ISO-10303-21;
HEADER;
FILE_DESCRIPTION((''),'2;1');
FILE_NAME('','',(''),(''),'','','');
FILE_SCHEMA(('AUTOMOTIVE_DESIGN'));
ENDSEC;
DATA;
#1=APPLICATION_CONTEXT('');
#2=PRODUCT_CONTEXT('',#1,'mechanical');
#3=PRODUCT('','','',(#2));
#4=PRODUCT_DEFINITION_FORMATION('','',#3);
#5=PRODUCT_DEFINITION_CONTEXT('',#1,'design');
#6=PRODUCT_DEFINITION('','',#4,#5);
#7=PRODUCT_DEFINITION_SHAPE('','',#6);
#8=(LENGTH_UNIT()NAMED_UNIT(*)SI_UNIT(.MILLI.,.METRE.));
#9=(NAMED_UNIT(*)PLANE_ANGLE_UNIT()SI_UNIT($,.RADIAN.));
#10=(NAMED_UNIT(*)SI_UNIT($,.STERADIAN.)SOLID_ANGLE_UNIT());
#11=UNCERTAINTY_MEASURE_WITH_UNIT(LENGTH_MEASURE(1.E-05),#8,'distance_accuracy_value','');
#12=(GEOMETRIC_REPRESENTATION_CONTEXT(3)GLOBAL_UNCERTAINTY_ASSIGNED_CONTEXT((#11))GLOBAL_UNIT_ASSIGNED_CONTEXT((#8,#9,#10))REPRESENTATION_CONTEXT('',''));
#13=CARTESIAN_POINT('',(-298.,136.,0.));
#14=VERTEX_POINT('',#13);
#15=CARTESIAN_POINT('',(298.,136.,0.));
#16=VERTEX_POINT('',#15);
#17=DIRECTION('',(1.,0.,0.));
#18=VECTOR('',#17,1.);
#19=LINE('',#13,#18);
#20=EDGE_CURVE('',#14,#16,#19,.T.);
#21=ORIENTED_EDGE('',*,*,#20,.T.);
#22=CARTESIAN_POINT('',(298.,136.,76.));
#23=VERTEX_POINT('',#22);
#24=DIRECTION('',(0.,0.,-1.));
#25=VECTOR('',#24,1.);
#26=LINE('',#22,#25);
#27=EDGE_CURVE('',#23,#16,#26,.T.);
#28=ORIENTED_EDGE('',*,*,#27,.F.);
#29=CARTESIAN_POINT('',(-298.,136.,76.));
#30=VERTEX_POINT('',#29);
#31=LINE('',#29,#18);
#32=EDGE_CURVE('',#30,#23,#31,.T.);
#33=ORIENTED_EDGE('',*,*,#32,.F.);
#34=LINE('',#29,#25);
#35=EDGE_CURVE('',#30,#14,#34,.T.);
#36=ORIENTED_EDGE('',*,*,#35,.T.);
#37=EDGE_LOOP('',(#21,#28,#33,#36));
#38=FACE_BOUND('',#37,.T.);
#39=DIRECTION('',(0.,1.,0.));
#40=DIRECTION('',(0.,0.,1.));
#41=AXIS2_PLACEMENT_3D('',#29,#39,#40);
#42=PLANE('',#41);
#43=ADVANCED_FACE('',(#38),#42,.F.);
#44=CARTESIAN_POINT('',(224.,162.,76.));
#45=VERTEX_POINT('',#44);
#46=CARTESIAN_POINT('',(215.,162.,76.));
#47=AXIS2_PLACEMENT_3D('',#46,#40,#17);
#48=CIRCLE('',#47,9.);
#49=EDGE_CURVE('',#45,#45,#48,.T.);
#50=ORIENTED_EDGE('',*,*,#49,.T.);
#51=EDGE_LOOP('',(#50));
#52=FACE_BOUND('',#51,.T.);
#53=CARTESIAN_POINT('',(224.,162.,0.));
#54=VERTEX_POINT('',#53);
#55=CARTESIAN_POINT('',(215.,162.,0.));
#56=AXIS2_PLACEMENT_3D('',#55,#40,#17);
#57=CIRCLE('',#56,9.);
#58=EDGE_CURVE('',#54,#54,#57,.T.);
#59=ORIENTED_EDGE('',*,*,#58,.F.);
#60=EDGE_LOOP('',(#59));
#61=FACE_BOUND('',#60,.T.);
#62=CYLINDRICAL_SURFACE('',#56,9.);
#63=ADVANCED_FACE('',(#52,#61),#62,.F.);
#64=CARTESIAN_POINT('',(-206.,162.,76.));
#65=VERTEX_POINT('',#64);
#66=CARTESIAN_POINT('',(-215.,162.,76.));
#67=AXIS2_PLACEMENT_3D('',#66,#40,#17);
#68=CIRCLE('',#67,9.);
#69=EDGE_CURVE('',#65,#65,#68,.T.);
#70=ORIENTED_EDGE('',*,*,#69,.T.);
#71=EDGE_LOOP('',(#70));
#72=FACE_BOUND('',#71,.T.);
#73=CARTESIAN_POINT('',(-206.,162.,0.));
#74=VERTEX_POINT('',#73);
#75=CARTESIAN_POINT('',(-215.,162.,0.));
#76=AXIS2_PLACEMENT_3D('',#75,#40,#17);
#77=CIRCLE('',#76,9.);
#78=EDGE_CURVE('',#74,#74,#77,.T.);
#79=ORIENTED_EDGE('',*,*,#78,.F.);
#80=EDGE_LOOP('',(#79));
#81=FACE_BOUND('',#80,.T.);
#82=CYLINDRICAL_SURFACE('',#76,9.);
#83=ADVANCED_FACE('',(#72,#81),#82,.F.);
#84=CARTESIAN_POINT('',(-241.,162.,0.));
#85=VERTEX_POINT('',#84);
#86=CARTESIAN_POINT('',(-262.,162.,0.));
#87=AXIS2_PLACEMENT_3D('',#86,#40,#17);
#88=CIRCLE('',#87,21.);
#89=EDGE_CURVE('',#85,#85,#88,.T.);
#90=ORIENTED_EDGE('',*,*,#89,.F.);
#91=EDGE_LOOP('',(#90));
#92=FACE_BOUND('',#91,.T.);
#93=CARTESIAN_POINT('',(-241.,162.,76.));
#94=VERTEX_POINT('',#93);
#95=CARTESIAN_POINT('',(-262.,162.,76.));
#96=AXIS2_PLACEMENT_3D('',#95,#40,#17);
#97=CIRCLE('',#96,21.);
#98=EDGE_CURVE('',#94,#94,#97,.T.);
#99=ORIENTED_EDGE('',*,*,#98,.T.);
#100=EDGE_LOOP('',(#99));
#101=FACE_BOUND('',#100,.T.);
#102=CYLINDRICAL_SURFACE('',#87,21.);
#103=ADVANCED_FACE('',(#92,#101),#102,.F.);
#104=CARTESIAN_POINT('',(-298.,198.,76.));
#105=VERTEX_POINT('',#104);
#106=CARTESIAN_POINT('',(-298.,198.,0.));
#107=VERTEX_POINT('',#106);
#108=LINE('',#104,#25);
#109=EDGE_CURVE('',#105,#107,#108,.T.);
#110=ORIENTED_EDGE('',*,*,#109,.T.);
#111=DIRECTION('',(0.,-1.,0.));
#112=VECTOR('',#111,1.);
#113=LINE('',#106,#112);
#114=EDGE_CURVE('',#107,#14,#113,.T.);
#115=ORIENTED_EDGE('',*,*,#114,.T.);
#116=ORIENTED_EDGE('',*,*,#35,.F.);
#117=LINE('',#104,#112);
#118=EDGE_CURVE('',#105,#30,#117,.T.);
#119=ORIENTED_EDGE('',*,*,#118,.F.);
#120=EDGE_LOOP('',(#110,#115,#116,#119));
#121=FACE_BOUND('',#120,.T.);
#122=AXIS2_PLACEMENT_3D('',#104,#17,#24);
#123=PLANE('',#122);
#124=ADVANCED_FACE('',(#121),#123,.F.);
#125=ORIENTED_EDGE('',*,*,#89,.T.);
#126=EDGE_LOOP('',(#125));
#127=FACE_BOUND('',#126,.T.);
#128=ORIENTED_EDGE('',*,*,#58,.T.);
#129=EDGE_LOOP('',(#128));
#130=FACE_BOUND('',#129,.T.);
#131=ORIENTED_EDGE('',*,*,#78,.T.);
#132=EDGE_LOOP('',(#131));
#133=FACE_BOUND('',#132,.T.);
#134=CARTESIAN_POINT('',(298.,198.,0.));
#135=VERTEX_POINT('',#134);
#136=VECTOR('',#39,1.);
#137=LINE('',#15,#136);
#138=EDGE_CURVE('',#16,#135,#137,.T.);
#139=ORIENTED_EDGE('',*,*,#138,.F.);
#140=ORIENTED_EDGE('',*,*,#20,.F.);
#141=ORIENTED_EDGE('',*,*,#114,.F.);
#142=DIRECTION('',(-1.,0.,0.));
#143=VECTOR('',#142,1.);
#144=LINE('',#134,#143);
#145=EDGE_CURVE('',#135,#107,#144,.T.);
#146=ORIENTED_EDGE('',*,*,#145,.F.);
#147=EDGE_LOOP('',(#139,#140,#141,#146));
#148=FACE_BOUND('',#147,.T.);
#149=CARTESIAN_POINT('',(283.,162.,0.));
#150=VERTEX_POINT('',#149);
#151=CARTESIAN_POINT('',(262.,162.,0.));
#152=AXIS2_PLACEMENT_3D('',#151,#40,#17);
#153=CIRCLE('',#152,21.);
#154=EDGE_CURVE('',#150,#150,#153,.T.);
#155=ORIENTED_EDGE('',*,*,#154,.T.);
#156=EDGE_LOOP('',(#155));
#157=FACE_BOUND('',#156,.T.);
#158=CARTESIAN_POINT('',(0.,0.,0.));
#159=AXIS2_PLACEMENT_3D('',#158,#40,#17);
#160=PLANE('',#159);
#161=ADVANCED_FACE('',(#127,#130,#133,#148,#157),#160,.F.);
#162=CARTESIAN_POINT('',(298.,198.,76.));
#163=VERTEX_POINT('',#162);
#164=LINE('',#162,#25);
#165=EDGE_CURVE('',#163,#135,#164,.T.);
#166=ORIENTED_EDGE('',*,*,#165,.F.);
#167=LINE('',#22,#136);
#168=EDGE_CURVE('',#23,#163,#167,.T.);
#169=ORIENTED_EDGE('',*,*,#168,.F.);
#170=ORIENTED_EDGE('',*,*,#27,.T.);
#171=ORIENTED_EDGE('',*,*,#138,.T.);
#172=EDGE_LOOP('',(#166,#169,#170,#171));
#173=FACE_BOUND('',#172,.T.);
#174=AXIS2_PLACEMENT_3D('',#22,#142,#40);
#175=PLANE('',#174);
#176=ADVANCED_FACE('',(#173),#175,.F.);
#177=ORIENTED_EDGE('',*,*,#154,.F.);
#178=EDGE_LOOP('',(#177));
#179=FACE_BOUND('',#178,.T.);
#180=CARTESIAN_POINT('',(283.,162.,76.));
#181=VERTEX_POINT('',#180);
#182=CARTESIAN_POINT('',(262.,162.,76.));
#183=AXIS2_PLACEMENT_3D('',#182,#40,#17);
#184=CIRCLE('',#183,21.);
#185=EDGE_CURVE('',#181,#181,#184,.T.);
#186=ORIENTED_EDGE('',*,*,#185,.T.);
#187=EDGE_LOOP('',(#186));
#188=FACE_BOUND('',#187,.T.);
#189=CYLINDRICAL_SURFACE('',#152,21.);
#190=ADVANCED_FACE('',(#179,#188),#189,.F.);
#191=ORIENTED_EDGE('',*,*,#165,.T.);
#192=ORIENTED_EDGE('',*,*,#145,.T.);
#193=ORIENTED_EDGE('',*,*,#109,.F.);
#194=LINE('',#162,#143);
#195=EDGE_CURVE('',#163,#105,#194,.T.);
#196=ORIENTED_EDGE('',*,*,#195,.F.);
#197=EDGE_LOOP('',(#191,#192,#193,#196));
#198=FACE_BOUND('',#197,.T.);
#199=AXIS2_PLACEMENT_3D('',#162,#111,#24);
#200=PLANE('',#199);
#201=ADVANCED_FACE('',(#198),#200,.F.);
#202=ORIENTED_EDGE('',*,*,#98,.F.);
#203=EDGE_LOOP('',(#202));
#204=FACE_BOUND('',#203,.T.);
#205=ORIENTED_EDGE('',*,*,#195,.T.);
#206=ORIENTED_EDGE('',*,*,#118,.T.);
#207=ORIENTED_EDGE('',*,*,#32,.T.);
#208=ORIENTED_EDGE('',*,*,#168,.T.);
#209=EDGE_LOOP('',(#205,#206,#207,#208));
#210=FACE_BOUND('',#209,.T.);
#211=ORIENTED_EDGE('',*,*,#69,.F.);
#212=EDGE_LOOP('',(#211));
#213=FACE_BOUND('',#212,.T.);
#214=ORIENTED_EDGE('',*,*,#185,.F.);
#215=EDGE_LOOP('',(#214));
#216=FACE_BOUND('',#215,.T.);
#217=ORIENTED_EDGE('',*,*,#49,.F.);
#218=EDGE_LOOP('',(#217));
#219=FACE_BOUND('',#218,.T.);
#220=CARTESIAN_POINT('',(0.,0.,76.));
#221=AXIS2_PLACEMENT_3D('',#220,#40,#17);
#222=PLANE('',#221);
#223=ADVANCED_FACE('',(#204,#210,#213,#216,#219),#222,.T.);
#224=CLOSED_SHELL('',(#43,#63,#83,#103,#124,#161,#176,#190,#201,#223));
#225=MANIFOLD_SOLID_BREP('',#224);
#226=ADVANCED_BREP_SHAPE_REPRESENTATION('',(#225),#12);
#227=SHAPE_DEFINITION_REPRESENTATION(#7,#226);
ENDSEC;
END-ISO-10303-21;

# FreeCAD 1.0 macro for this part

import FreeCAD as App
import Part
import Sketcher

V = App.Vector
Q = App.Units.Quantity


def add_polygon(sketch, points):
    """Adds a closed chain of lines whose ends are joined by coincident constraints."""
    first, n = sketch.GeometryCount, len(points)
    for a, b in zip(points, points[1:] + points[:1]):
        sketch.addGeometry(Part.LineSegment(App.Vector(*a, 0), App.Vector(*b, 0)), False)
    for i in range(n):
        sketch.addConstraint(Sketcher.Constraint("Coincident", first + i, 2, first + (i + 1) % n, 1))

doc = App.newDocument("Part")
body = doc.addObject("PartDesign::Body", "Body")

sketch1 = body.newObject("Sketcher::SketchObject", "Sketch")
sketch1.AttachmentSupport = (doc.getObject("XY_Plane"), [""])
sketch1.MapMode = "FlatFace"
add_polygon(sketch1, [(-298, 198), (-298, 136), (298, 136), (298, 198)])
sketch1.addConstraint([
    Sketcher.Constraint("Vertical", 0),
    Sketcher.Constraint("Horizontal", 1),
    Sketcher.Constraint("Vertical", 2),
    Sketcher.Constraint("Horizontal", 3),
    Sketcher.Constraint("DistanceX", 1, 1, 1, 2, Q("596 mm")),
    Sketcher.Constraint("DistanceY", 0, 2, 0, 1, Q("62 mm")),
    Sketcher.Constraint("DistanceX", 0, 2, -1, 1, Q("298 mm")),
    Sketcher.Constraint("DistanceY", -1, 1, 0, 2, Q("136 mm")),
])
pad1 = body.newObject("PartDesign::Pad", "Pad")
pad1.Profile = sketch1
pad1.Length = 76

sketch2 = body.newObject("Sketcher::SketchObject", "Sketch001")
sketch2.AttachmentSupport = (doc.getObject("XY_Plane"), [""])
sketch2.MapMode = "FlatFace"
sketch2.AttachmentOffset = App.Placement(V(0, 0, 76), App.Rotation())
sketch2.addGeometry(Part.Circle(V(262, 162, 0), V(0, 0, 1), 21), False)
sketch2.addConstraint([
    Sketcher.Constraint("Diameter", 0, Q("42 mm")),
    Sketcher.Constraint("DistanceX", -1, 1, 0, 3, Q("262 mm")),
    Sketcher.Constraint("DistanceY", -1, 1, 0, 3, Q("162 mm")),
])
pocket1 = body.newObject("PartDesign::Pocket", "Pocket")
pocket1.Profile = sketch2
pocket1.Length = 76

sketch3 = body.newObject("Sketcher::SketchObject", "Sketch002")
sketch3.AttachmentSupport = (doc.getObject("XY_Plane"), [""])
sketch3.MapMode = "FlatFace"
sketch3.AttachmentOffset = App.Placement(V(0, 0, 76), App.Rotation())
sketch3.addGeometry(Part.Circle(V(-262, 162, 0), V(0, 0, 1), 21), False)
sketch3.addConstraint([
    Sketcher.Constraint("Diameter", 0, Q("42 mm")),
    Sketcher.Constraint("DistanceX", 0, 3, -1, 1, Q("262 mm")),
    Sketcher.Constraint("DistanceY", -1, 1, 0, 3, Q("162 mm")),
])
pocket2 = body.newObject("PartDesign::Pocket", "Pocket001")
pocket2.Profile = sketch3
pocket2.Length = 76

sketch4 = body.newObject("Sketcher::SketchObject", "Sketch003")
sketch4.AttachmentSupport = (doc.getObject("YZ_Plane"), [""])
sketch4.MapMode = "FlatFace"
sketch4.AttachmentOffset = App.Placement(V(0, 0, 215), App.Rotation())
add_polygon(sketch4, [(171, 76), (162, 76), (162, 0), (171, 0)])
sketch4.addGeometry(Part.LineSegment(V(162, 0, 0), V(162, 76, 0)), True)
sketch4.addConstraint([
    Sketcher.Constraint("Horizontal", 0),
    Sketcher.Constraint("Vertical", 1),
    Sketcher.Constraint("Horizontal", 2),
    Sketcher.Constraint("Vertical", 3),
    Sketcher.Constraint("Vertical", 4),
    Sketcher.Constraint("Coincident", 4, 1, 1, 2),
    Sketcher.Constraint("PointOnObject", 1, 2, -1),
    Sketcher.Constraint("Horizontal", 3, 2, 4, 2),
    Sketcher.Constraint("DistanceX", 0, 2, 0, 1, Q("9 mm")),
    Sketcher.Constraint("DistanceY", 1, 2, 1, 1, Q("76 mm")),
    Sketcher.Constraint("DistanceX", -1, 1, 0, 2, Q("162 mm")),
])
groove = body.newObject("PartDesign::Groove", "Groove")
groove.Profile = sketch4
groove.ReferenceAxis = (sketch4, ["Axis0"])
groove.Angle = 360

sketch5 = body.newObject("Sketcher::SketchObject", "Sketch004")
sketch5.AttachmentSupport = (doc.getObject("YZ_Plane"), [""])
sketch5.MapMode = "FlatFace"
sketch5.AttachmentOffset = App.Placement(V(0, 0, -215), App.Rotation())
add_polygon(sketch5, [(171, 76), (162, 76), (162, 0), (171, 0)])
sketch5.addGeometry(Part.LineSegment(V(162, 0, 0), V(162, 76, 0)), True)
sketch5.addConstraint([
    Sketcher.Constraint("Horizontal", 0),
    Sketcher.Constraint("Vertical", 1),
    Sketcher.Constraint("Horizontal", 2),
    Sketcher.Constraint("Vertical", 3),
    Sketcher.Constraint("Vertical", 4),
    Sketcher.Constraint("Coincident", 4, 1, 1, 2),
    Sketcher.Constraint("PointOnObject", 1, 2, -1),
    Sketcher.Constraint("Horizontal", 3, 2, 4, 2),
    Sketcher.Constraint("DistanceX", 0, 2, 0, 1, Q("9 mm")),
    Sketcher.Constraint("DistanceY", 1, 2, 1, 1, Q("76 mm")),
    Sketcher.Constraint("DistanceX", -1, 1, 0, 2, Q("162 mm")),
])
groove2 = body.newObject("PartDesign::Groove", "Groove001")
groove2.Profile = sketch5
groove2.ReferenceAxis = (sketch5, ["Axis0"])
groove2.Angle = 360

doc.recompute()
